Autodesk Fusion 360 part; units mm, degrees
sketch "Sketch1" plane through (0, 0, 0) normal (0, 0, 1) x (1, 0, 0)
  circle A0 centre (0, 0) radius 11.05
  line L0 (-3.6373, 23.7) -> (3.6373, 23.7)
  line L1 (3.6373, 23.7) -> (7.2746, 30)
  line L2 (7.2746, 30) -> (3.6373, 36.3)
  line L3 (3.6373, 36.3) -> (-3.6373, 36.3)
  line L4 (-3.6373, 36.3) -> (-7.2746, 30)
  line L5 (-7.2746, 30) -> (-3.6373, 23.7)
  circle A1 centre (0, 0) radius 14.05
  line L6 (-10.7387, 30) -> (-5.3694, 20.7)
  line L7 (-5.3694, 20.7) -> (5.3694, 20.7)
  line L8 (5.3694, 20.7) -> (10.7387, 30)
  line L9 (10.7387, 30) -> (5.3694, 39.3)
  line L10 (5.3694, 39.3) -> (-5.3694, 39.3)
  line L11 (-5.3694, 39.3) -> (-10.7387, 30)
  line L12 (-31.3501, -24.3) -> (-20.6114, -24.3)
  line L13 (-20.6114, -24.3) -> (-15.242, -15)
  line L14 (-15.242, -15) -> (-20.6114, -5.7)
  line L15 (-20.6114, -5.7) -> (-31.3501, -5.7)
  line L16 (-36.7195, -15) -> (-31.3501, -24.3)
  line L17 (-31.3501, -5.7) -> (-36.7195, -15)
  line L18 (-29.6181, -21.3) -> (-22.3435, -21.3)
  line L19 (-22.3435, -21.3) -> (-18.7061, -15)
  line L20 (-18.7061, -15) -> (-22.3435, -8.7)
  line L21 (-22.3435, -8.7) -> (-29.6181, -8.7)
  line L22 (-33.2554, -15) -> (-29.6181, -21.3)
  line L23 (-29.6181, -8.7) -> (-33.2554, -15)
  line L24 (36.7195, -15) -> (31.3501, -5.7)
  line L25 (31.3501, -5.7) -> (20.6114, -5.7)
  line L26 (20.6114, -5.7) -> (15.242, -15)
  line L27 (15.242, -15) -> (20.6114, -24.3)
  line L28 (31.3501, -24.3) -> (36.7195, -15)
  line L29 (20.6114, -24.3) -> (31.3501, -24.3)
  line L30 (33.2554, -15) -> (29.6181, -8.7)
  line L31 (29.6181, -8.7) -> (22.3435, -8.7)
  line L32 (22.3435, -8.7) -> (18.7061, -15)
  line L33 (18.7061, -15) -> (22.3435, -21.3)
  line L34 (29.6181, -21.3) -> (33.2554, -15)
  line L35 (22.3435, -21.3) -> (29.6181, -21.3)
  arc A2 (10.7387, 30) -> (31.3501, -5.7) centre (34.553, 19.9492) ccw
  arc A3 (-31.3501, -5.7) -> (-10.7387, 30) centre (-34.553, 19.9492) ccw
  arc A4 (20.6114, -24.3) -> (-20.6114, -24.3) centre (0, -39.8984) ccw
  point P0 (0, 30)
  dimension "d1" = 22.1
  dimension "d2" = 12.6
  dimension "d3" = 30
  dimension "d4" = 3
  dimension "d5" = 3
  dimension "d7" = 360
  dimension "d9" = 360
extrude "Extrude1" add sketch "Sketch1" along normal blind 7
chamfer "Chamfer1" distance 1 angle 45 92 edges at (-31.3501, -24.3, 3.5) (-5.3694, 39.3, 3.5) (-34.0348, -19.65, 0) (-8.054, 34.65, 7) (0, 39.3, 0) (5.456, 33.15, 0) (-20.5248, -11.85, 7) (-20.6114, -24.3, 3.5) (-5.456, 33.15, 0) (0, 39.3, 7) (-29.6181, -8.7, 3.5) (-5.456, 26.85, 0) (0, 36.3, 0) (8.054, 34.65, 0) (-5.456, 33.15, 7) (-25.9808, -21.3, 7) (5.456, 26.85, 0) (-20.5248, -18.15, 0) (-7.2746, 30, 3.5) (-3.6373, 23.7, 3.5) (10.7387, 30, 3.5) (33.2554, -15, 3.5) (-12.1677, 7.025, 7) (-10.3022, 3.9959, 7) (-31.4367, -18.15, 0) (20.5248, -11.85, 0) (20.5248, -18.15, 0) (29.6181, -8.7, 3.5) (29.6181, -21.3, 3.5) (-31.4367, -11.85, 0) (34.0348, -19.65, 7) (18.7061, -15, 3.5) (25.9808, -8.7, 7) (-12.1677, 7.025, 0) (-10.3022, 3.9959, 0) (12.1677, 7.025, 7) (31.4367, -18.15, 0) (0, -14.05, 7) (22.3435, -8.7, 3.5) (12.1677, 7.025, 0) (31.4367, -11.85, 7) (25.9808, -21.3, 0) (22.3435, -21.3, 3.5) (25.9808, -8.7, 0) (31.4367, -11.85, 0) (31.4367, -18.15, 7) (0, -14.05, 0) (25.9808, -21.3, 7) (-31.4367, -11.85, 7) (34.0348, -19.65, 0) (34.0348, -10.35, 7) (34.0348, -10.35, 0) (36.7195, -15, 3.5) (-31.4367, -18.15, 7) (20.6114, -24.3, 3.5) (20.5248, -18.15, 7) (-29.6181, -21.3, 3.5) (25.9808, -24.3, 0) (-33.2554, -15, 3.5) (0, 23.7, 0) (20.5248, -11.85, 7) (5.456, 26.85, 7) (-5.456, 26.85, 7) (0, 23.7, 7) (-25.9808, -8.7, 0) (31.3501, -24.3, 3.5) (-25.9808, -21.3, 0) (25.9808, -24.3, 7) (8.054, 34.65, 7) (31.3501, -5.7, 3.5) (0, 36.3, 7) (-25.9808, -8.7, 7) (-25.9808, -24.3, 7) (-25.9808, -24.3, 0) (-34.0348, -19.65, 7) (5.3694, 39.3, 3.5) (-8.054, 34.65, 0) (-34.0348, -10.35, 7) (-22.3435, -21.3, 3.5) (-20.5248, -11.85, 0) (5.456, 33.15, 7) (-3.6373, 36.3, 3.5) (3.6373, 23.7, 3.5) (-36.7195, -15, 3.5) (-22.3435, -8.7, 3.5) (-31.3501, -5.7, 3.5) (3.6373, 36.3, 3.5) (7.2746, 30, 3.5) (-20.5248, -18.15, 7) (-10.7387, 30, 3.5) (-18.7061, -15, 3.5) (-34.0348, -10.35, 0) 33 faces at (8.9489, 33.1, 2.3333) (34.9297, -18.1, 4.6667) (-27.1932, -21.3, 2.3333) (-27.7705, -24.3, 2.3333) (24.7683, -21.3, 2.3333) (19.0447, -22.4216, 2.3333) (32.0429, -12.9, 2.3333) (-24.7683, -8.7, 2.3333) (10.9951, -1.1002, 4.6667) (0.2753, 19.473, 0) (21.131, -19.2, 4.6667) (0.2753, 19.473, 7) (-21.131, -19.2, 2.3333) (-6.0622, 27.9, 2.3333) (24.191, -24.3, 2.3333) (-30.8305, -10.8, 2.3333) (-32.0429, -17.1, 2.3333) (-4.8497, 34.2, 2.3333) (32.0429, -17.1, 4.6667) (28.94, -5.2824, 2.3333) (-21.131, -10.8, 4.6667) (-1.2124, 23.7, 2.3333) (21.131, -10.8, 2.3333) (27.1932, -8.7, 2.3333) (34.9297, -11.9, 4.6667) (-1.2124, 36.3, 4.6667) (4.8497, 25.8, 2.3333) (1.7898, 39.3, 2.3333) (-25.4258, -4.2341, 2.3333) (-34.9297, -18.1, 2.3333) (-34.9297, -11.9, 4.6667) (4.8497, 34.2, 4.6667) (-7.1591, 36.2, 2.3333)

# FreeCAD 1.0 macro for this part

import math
import FreeCAD as App
import Part
import Sketcher

V = App.Vector
Q = App.Units.Quantity


def add_polygon(sketch, points):
    """Adds a closed chain of lines whose ends are joined by coincident constraints."""
    first, n = sketch.GeometryCount, len(points)
    for a, b in zip(points, points[1:] + points[:1]):
        sketch.addGeometry(Part.LineSegment(App.Vector(*a, 0), App.Vector(*b, 0)), False)
    for i in range(n):
        sketch.addConstraint(Sketcher.Constraint("Coincident", first + i, 2, first + (i + 1) % n, 1))

doc = App.newDocument("Part")
body = doc.addObject("PartDesign::Body", "Body")

sketch1 = doc.addObject("Sketcher::SketchObject", "Sketch")
body.addObject(sketch1)
sketch1.AttachmentSupport = (doc.XY_Plane, [""])
sketch1.MapMode = "FlatFace"
sketch1.addGeometry(Part.LineSegment(V(21, -24, 0), V(31, -24, 0)), False)
sketch1.addGeometry(Part.LineSegment(V(31, -24, 0), V(37, -15, 0)), False)
sketch1.addGeometry(Part.LineSegment(V(37, -15, 0), V(31, -6, 0)), False)
sketch1.addGeometry(Part.ArcOfCircle(Part.Circle(V(35, 20, 0), V(0, 0, 1), 26), math.radians(157), math.radians(263)), False)
sketch1.addGeometry(Part.LineSegment(V(11, 30, 0), V(5, 39, 0)), False)
sketch1.addGeometry(Part.LineSegment(V(5, 39, 0), V(-5, 39, 0)), False)
sketch1.addGeometry(Part.LineSegment(V(-5, 39, 0), V(-11, 30, 0)), False)
sketch1.addGeometry(Part.ArcOfCircle(Part.Circle(V(-35, 20, 0), V(0, 0, 1), 26), math.radians(-83), math.radians(23)), False)
sketch1.addGeometry(Part.LineSegment(V(-31, -6, 0), V(-37, -15, 0)), False)
sketch1.addGeometry(Part.LineSegment(V(-37, -15, 0), V(-31, -24, 0)), False)
sketch1.addGeometry(Part.LineSegment(V(-31, -24, 0), V(-21, -24, 0)), False)
sketch1.addGeometry(Part.ArcOfCircle(Part.Circle(V(0, -40, 0), V(0, 0, 1), 26), math.radians(37), math.radians(143)), False)
sketch1.addGeometry(Part.Circle(V(0, 0, 0), V(0, 0, 1), 11), False)
add_polygon(sketch1, [(22, -21), (19, -15), (22, -9), (30, -9), (33, -15), (30, -21)])
add_polygon(sketch1, [(-30, -9), (-22, -9), (-19, -15), (-22, -21), (-30, -21), (-33, -15)])
add_polygon(sketch1, [(-4, 36), (4, 36), (7, 30), (4, 24), (-4, 24), (-7, 30)])
sketch1.addConstraint([
    Sketcher.Constraint("Coincident", 0, 2, 1, 1),
    Sketcher.Constraint("Coincident", 1, 2, 2, 1),
    Sketcher.Constraint("Coincident", 2, 2, 3, 2),
    Sketcher.Constraint("Coincident", 3, 1, 4, 1),
    Sketcher.Constraint("Coincident", 4, 2, 5, 1),
    Sketcher.Constraint("Coincident", 5, 2, 6, 1),
    Sketcher.Constraint("Coincident", 6, 2, 7, 2),
    Sketcher.Constraint("Coincident", 7, 1, 8, 1),
    Sketcher.Constraint("Coincident", 8, 2, 9, 1),
    Sketcher.Constraint("Coincident", 9, 2, 10, 1),
    Sketcher.Constraint("Coincident", 10, 2, 11, 2),
    Sketcher.Constraint("Coincident", 11, 1, 0, 1),
    Sketcher.Constraint("Horizontal", 0),
    Sketcher.Constraint("Horizontal", 5),
    Sketcher.Constraint("Horizontal", 10),
    Sketcher.Constraint("Horizontal", 15),
    Sketcher.Constraint("Horizontal", 18),
    Sketcher.Constraint("Horizontal", 19),
    Sketcher.Constraint("Horizontal", 22),
    Sketcher.Constraint("Horizontal", 25),
    Sketcher.Constraint("Horizontal", 28),
    Sketcher.Constraint("Coincident", 12, 3, -1, 1),
    Sketcher.Constraint("Equal", 3, 7),
    Sketcher.Constraint("Equal", 7, 11),
    Sketcher.Constraint("Symmetric", 3, 3, 7, 3, -2),
    Sketcher.Constraint("Symmetric", 1, 2, 8, 2, -2),
    Sketcher.Constraint("Symmetric", 0, 2, 9, 2, -2),
    Sketcher.Constraint("Symmetric", 14, 2, 19, 2, -2),
    Sketcher.Constraint("Symmetric", 13, 2, 20, 2, -2),
    Sketcher.Constraint("Symmetric", 18, 2, 21, 2, -2),
    Sketcher.Constraint("Symmetric", 16, 2, 23, 2, -2),
    Sketcher.Constraint("Symmetric", 26, 2, 29, 2, -2),
    Sketcher.Constraint("PointOnObject", 11, 3, -2),
    Sketcher.Constraint("Parallel", 2, 4),
    Sketcher.Constraint("Parallel", 1, 6),
    Sketcher.Constraint("Parallel", 6, 8),
    Sketcher.Constraint("Parallel", 4, 9),
    Sketcher.Constraint("Parallel", 9, 13),
    Sketcher.Constraint("Parallel", 8, 14),
    Sketcher.Constraint("Parallel", 13, 16),
    Sketcher.Constraint("Parallel", 14, 17),
    Sketcher.Constraint("Parallel", 20, 23),
    Sketcher.Constraint("Parallel", 21, 24),
    Sketcher.Constraint("Parallel", 23, 26),
    Sketcher.Constraint("Parallel", 24, 27),
    Sketcher.Constraint("Parallel", 26, 29),
    Sketcher.Constraint("Parallel", 27, 30),
    Sketcher.Constraint("Horizontal", 3, 1, 6, 2),
    Sketcher.Constraint("Horizontal", 8, 2, 13, 2),
    Sketcher.Constraint("Horizontal", 13, 2, 16, 2),
    Sketcher.Constraint("Horizontal", 6, 2, 26, 2),
    Sketcher.Constraint("Vertical", 0, 2, 2, 2),
    Sketcher.Constraint("Vertical", 15, 2, 17, 2),
    Sketcher.Constraint("Vertical", 25, 2, 27, 2),
    Sketcher.Constraint("Equal", 0, 5),
    Sketcher.Constraint("Equal", 22, 25),
    Sketcher.Constraint("Equal", 2, 4),
    Sketcher.Constraint("Equal", 24, 26),
    Sketcher.Constraint("Diameter", 12, Q("22.1 mm")),
    Sketcher.Constraint("DistanceY", -1, 1, 3, 1, Q("30 mm")),
    Sketcher.Constraint("DistanceY", 14, 2, 2, 2, Q("3 mm")),
    Sketcher.Constraint("DistanceY", 17, 2, 15, 2, Q("12.6 mm")),
    Sketcher.Constraint("Angle", 1, Q("59.9998 deg")),
    Sketcher.Constraint("DistanceY", 1, 2, -1, 1, Q("15 mm")),
    Sketcher.Constraint("Radius", 3, Q("25.8484 mm")),
    Sketcher.Constraint("DistanceX", -1, 1, 0, 2, Q("31.35 mm")),
    Sketcher.Constraint("DistanceX", 0, 1, 0, 2, Q("10.7387 mm")),
    Sketcher.Constraint("DistanceX", 15, 1, 15, 2, Q("7.2746 mm")),
    Sketcher.Constraint("DistanceX", -1, 1, 13, 2, Q("18.706 mm")),
])
pad1 = doc.addObject("PartDesign::Pad", "Pad")
body.addObject(pad1)
pad1.Profile = sketch1
pad1.Length = 7
doc.recompute()

chamfer = doc.addObject("PartDesign::Chamfer", "Chamfer")
body.addObject(chamfer)
chamfer.Base = (pad1, ["Edge1"])
chamfer.UseAllEdges = True
chamfer.Size = 1

doc.recompute()
